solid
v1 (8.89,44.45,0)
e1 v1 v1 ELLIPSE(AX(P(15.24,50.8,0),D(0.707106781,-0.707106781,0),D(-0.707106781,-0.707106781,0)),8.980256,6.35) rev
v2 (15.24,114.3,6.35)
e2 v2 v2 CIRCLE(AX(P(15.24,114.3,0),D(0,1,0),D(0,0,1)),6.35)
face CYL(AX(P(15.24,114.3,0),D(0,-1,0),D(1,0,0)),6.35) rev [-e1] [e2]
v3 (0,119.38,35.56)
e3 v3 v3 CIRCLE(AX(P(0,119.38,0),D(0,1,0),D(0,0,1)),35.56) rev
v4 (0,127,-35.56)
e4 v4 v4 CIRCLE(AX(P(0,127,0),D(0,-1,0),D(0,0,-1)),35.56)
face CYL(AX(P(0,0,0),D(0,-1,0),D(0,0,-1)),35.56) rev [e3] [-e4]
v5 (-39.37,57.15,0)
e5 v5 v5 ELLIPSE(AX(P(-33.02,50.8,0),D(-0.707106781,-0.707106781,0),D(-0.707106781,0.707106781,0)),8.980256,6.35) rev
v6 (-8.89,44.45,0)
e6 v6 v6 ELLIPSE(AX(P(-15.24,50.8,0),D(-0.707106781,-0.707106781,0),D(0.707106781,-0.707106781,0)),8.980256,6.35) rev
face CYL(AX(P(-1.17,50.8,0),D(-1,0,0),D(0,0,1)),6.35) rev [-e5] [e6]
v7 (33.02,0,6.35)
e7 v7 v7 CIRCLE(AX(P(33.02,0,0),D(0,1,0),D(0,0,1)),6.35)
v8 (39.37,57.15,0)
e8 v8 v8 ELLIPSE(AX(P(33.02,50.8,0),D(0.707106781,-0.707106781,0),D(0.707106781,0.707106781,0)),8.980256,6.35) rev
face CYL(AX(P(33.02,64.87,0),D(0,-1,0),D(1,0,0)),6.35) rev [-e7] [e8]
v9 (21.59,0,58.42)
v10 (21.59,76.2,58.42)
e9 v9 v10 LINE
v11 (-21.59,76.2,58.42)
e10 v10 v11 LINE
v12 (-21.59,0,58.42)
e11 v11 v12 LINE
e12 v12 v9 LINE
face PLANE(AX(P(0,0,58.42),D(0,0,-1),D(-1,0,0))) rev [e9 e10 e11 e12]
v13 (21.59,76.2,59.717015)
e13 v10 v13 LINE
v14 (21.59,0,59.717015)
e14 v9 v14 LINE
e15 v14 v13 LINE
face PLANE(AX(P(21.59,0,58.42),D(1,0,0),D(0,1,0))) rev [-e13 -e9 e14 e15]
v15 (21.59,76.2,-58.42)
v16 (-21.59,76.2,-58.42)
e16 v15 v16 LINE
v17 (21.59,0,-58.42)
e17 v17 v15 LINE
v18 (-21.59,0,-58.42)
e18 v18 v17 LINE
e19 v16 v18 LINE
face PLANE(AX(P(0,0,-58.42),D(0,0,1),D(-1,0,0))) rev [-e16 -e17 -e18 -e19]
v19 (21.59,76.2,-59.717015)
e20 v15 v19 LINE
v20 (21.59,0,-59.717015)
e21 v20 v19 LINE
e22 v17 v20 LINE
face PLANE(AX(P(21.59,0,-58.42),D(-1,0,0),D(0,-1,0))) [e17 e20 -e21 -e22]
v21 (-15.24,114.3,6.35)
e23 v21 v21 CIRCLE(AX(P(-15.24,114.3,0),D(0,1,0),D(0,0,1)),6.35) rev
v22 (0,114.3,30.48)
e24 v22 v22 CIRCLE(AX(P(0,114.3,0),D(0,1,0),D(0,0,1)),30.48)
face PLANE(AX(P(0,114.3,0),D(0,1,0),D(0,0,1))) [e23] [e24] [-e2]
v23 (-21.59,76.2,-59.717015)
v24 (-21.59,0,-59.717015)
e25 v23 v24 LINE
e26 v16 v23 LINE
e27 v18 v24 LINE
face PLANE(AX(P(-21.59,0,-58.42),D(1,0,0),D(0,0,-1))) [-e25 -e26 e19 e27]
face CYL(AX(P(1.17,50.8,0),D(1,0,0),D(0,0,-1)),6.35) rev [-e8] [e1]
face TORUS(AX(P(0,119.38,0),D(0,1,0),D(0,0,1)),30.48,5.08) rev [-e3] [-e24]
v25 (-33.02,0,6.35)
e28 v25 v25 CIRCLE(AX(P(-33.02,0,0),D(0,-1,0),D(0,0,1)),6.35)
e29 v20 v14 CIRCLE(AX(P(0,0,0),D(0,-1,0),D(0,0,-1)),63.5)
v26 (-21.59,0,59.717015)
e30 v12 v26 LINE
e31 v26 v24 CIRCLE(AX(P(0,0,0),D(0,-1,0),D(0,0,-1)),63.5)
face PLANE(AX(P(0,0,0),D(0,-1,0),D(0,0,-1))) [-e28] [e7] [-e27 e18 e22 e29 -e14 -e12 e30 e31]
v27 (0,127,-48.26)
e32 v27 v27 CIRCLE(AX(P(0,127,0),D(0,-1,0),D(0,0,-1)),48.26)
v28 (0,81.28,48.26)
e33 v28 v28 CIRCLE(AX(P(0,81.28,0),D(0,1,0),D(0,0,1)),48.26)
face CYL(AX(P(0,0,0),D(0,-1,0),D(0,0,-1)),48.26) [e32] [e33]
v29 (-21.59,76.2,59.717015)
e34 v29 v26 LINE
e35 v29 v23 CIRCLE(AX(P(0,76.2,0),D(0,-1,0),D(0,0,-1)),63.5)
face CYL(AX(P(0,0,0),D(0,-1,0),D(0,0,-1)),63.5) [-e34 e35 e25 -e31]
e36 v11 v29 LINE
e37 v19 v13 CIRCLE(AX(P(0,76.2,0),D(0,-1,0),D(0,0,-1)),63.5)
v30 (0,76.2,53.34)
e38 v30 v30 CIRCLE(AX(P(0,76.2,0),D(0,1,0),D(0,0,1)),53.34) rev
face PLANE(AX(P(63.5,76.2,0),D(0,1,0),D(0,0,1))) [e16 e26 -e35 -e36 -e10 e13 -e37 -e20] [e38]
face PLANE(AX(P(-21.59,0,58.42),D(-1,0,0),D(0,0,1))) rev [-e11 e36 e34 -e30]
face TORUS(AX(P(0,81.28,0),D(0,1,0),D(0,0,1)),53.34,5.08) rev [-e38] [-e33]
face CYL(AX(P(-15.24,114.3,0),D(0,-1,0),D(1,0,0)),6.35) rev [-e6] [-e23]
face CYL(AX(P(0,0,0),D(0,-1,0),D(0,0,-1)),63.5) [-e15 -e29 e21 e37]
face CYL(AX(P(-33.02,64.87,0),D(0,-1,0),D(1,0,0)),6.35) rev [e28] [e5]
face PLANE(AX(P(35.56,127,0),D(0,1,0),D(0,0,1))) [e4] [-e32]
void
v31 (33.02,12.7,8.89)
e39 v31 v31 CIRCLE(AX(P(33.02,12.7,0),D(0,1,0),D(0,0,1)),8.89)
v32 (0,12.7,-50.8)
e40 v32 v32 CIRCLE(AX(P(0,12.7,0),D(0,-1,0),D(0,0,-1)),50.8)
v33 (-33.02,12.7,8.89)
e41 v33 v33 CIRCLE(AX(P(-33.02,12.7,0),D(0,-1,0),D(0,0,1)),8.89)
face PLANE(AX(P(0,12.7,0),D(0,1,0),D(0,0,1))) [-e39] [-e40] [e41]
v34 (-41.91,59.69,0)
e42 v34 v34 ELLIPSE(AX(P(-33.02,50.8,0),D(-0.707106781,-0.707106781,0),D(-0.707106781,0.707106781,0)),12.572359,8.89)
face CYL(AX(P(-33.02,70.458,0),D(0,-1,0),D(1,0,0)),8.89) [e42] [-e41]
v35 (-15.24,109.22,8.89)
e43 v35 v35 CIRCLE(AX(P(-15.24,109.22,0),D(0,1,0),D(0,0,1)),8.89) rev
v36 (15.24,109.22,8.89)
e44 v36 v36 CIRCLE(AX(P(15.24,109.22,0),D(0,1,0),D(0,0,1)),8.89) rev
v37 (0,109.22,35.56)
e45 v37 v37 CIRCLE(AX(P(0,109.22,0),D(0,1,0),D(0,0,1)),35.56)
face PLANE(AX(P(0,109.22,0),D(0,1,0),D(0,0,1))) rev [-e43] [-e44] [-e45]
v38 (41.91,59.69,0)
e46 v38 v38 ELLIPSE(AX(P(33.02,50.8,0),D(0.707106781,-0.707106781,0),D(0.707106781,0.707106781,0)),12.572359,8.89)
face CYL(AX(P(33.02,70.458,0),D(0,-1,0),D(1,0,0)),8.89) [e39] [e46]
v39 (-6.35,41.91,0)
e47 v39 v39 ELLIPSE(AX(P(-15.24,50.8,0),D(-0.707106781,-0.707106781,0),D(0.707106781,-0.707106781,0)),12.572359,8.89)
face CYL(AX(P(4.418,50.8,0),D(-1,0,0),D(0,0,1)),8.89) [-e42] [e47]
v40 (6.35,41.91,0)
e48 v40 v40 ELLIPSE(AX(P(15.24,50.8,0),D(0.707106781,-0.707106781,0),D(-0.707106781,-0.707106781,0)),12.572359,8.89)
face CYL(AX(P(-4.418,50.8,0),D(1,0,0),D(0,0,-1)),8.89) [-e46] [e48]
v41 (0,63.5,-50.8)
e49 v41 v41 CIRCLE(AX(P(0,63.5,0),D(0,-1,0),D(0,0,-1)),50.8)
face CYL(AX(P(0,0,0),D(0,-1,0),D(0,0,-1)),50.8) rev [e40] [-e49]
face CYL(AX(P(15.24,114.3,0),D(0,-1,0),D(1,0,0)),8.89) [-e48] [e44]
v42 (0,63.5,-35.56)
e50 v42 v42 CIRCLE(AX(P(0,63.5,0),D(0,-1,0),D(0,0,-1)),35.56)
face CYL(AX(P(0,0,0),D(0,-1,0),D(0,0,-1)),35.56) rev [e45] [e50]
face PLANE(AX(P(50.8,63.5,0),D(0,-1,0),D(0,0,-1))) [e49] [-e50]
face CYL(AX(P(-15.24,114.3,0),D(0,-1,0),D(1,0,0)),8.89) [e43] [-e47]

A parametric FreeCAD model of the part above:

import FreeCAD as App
import Part
import Sketcher
from FreeCAD import Vector
Q = App.Units.Quantity


def edges_at(feature, points):
    """Names of the edges that pass closest to the given points."""
    edges = feature.Shape.Edges
    near = lambda p: min(range(len(edges)), key=lambda i: edges[i].distToShape(Part.Vertex(*p))[0])
    return sorted({f"Edge{near(p) + 1}" for p in points})


def add_polygon(sketch, points):
    """Adds a closed chain of lines whose ends are joined by coincident constraints."""
    first, n = sketch.GeometryCount, len(points)
    for a, b in zip(points, points[1:] + points[:1]):
        sketch.addGeometry(Part.LineSegment(App.Vector(*a, 0), App.Vector(*b, 0)), False)
    for i in range(n):
        sketch.addConstraint(Sketcher.Constraint("Coincident", first + i, 2, first + (i + 1) % n, 1))

doc = App.newDocument("Part")
body = doc.addObject("PartDesign::Body", "Body")

sketch1 = body.newObject("Sketcher::SketchObject", "Sketch")
sketch1.AttachmentSupport = (doc.getObject("XY_Plane"), [""])
sketch1.MapMode = "FlatFace"
add_polygon(sketch1, [(0, 0), (64, 0), (64, 76), (48, 76), (48, 127), (36, 127), (36, 64), (51, 64), (51, 13), (0, 13)])
sketch1.addConstraint([
    Sketcher.Constraint("Horizontal", 0),
    Sketcher.Constraint("Vertical", 1),
    Sketcher.Constraint("Horizontal", 2),
    Sketcher.Constraint("Vertical", 3),
    Sketcher.Constraint("Horizontal", 4),
    Sketcher.Constraint("Vertical", 5),
    Sketcher.Constraint("Horizontal", 6),
    Sketcher.Constraint("Vertical", 7),
    Sketcher.Constraint("Horizontal", 8),
    Sketcher.Constraint("Vertical", 9),
    Sketcher.Constraint("Coincident", 9, 2, -1, 1),
    Sketcher.Constraint("Equal", 2, 6),
    Sketcher.Constraint("Equal", 8, 3),
    Sketcher.Constraint("Equal", 0, 5),
    Sketcher.Constraint("Equal", 3, 7),
    Sketcher.Constraint("Equal", 4, 9),
    Sketcher.Constraint("DistanceX", 8, 2, 8, 1, Q("2 in")),
    Sketcher.Constraint("DistanceY", 1, 1, 1, 2, Q("3 in")),
    Sketcher.Constraint("DistanceX", 2, 2, 2, 1, Q("0.6 in")),
])
revolution = body.newObject("PartDesign::Revolution", "Revolution")
revolution.Profile = sketch1
revolution.ReferenceAxis = (sketch1, ["V_Axis"])
revolution.Angle = 360

sketch2 = body.newObject("Sketcher::SketchObject", "Sketch001")
sketch2.AttachmentSupport = (doc.getObject("XZ_Plane"), [""])
sketch2.MapMode = "FlatFace"
sketch2.AttachmentOffset = App.Placement(Vector(0, 0, -4.3 * 25.4), App.Rotation())
sketch2.addGeometry(Part.Circle(Vector(0, 0, 0), Vector(0, 0, 1), 36), False)
sketch2.addConstraint([
    Sketcher.Constraint("Coincident", 0, 3, -1, 1),
    Sketcher.Constraint("Diameter", 0, Q("2.8 in")),
])
pad1 = body.newObject("PartDesign::Pad", "Pad")
pad1.Profile = sketch2
pad1.Length = Q("0.2 in")
pad1.Reversed = True

sketch3 = body.newObject("Sketcher::SketchObject", "Sketch002")
sketch3.AttachmentSupport = (doc.getObject("XZ_Plane"), [""])
sketch3.MapMode = "FlatFace"
sketch3.AttachmentOffset = App.Placement(Vector(0, 0, -4.5 * 25.4), App.Rotation())
sketch3.addGeometry([
    Part.Circle(Vector(15, 0, 0), Vector(0, 0, 1), 9),
    Part.Circle(Vector(15, 0, 0), Vector(0, 0, 1), 6),
], False)
sketch3.addConstraint([
    Sketcher.Constraint("Coincident", 1, 3, 0, 3),
    Sketcher.Constraint("PointOnObject", 0, 3, -1),
    Sketcher.Constraint("Diameter", 0, Q("0.7 in")),
    Sketcher.Constraint("Diameter", 1, Q("0.5 in")),
    Sketcher.Constraint("DistanceX", -1, 1, 0, 3, Q("0.6 in")),
])

sketch4 = body.newObject("Sketcher::SketchObject", "Sketch003")
sketch4.AttachmentSupport = (doc.getObject("XY_Plane"), [""])
sketch4.MapMode = "FlatFace"
sketch4.addGeometry([
    Part.LineSegment(Vector(15, 114, 0), Vector(15, 51, 0)),
    Part.LineSegment(Vector(15, 51, 0), Vector(33, 51, 0)),
    Part.LineSegment(Vector(33, 51, 0), Vector(33, 13, 0)),
], False)
sketch4.addConstraint([
    Sketcher.Constraint("Coincident", 0, 2, 1, 1),
    Sketcher.Constraint("Coincident", 1, 2, 2, 1),
    Sketcher.Constraint("Vertical", 0),
    Sketcher.Constraint("Horizontal", 1),
    Sketcher.Constraint("Vertical", 2),
    Sketcher.Constraint("DistanceX", 1, 1, 1, 2, Q("0.7 in")),
    Sketcher.Constraint("DistanceY", 0, 2, 0, 1, Q("2.5 in")),
    Sketcher.Constraint("DistanceY", 2, 2, 2, 1, Q("1.5 in")),
    Sketcher.Constraint("DistanceY", -1, 1, 0, 2, Q("2 in")),
    Sketcher.Constraint("DistanceX", -1, 1, 0, 1, Q("0.6 in")),
])
doc.recompute()

additivepipe = body.newObject("PartDesign::AdditivePipe", "AdditivePipe")
additivepipe.Profile = sketch3
additivepipe.Spine = (sketch4, ["Edge1", "Edge2", "Edge3"])
additivepipe.Transition = "Right corner"

sketch5 = body.newObject("Sketcher::SketchObject", "Sketch004")
sketch5.AttachmentSupport = (doc.getObject("XZ_Plane"), [""])
sketch5.MapMode = "FlatFace"
sketch5.AttachmentOffset = App.Placement(Vector(0, 0, -0.5 * 25.4), App.Rotation())
sketch5.addGeometry(Part.Circle(Vector(33, 0, 0), Vector(0, 0, 1), 6), False)
sketch5.addConstraint([
    Sketcher.Constraint("PointOnObject", 0, 3, -1),
    Sketcher.Constraint("Diameter", 0, Q("0.5 in")),
    Sketcher.Constraint("DistanceX", -1, 1, 0, 3, Q("1.3 in")),
])
pocket1 = body.newObject("PartDesign::Pocket", "Pocket")
pocket1.Profile = sketch5
pocket1.Type = "ThroughAll"
pocket1.Reversed = True

sketch6 = body.newObject("Sketcher::SketchObject", "Sketch005")
sketch6.AttachmentSupport = (doc.getObject("XZ_Plane"), [""])
sketch6.MapMode = "FlatFace"
sketch6.AttachmentOffset = App.Placement(Vector(0, 0, -4.3 * 25.4), App.Rotation())
sketch6.addGeometry(Part.Circle(Vector(15, 0, 0), Vector(0, 0, 1), 6), False)
sketch6.addConstraint([
    Sketcher.Constraint("PointOnObject", 0, 3, -1),
    Sketcher.Constraint("Diameter", 0, Q("0.5 in")),
    Sketcher.Constraint("DistanceX", -1, 1, 0, 3, Q("0.6 in")),
])
pocket2 = body.newObject("PartDesign::Pocket", "Pocket001")
pocket2.Profile = sketch6
pocket2.Type = "ThroughAll"
doc.recompute()

mirrored = body.newObject("PartDesign::Mirrored", "Mirrored")
mirrored.Originals = [additivepipe, pocket1, pocket2]
mirrored.MirrorPlane = (doc.getObject("YZ_Plane"), [""])
body.Tip = mirrored

sketch7 = body.newObject("Sketcher::SketchObject", "Sketch006")
sketch7.AttachmentSupport = (doc.getObject("XY_Plane"), [""])
sketch7.MapMode = "FlatFace"
sketch7.AttachmentOffset = App.Placement(Vector(0, 0, 2.5 * 25.4), App.Rotation())
add_polygon(sketch7, [(-22, 76), (-22, 0), (22, 0), (22, 76)])
sketch7.addConstraint([
    Sketcher.Constraint("Vertical", 0),
    Sketcher.Constraint("Horizontal", 1),
    Sketcher.Constraint("Vertical", 2),
    Sketcher.Constraint("Horizontal", 3),
    Sketcher.Constraint("Symmetric", 0, 2, 1, 2, -1, 1),
    Sketcher.Constraint("DistanceY", 0, 2, 0, 1, Q("3 in")),
    Sketcher.Constraint("DistanceX", 1, 1, 1, 2, Q("1.7 in")),
])
pocket3 = body.newObject("PartDesign::Pocket", "Pocket002")
pocket3.Profile = sketch7
pocket3.Length = Q("0.2 in")
doc.recompute()

mirrored2 = body.newObject("PartDesign::Mirrored", "Mirrored001")
mirrored2.Originals = [pocket3]
mirrored2.MirrorPlane = (doc.getObject("XY_Plane"), [""])
body.Tip = mirrored2
doc.recompute()

fillet = body.newObject("PartDesign::Fillet", "Fillet")
fillet.Base = (mirrored2, edges_at(mirrored2, [(0, 76.2, 48.26), (0, 114.3, 35.56)]))
fillet.Radius = Q("0.2 in")

doc.recompute()
